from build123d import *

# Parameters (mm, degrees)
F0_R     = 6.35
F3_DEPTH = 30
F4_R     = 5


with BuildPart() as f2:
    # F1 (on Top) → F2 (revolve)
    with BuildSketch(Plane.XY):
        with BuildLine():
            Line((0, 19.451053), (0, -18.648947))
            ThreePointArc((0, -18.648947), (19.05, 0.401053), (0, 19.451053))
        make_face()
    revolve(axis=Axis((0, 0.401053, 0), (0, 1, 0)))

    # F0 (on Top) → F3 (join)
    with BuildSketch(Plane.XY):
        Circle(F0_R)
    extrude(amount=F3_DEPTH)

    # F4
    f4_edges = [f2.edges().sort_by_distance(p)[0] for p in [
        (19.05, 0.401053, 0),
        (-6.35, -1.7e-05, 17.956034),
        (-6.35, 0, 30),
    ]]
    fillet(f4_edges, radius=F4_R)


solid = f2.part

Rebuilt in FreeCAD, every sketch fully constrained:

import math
import FreeCAD as App
import Part
import Sketcher

V = App.Vector


def edges_at(feature, points):
    """Names of the edges that pass closest to the given points."""
    edges = feature.Shape.Edges
    near = lambda p: min(range(len(edges)), key=lambda i: edges[i].distToShape(Part.Vertex(*p))[0])
    return sorted({f"Edge{near(p) + 1}" for p in points})

doc = App.newDocument("Part")
body = doc.addObject("PartDesign::Body", "Body")

# Sketch on XY plane
sketch1 = body.newObject("Sketcher::SketchObject", "Sketch")
sketch1.AttachmentSupport = (doc.getObject("XY_Plane"), [""])
sketch1.MapMode = "FlatFace"
sketch1.addGeometry(Part.LineSegment(V(0, 19.451053, 0), V(0, -18.648947, 0)), False)
sketch1.addGeometry(Part.ArcOfCircle(Part.Circle(V(0, 0.401053, 0), V(0, 0, 1), 19.05), math.radians(-90), math.radians(90)), False)
sketch1.addConstraint(Sketcher.Constraint("Coincident", 0, 1, 1, 2))
sketch1.addConstraint(Sketcher.Constraint("Coincident", 1, 1, 0, 2))
sketch1.addConstraint(Sketcher.Constraint("Vertical", 0))
sketch1.addConstraint(Sketcher.Constraint("PointOnObject", 1, 3, -2))
sketch1.addConstraint(Sketcher.Constraint("PointOnObject", 0, 1, -2))
sketch1.addConstraint(Sketcher.Constraint("Radius", 1, 19.05))
sketch1.addConstraint(Sketcher.Constraint("DistanceY", -1, 1, 1, 3, 0.401053))
revolution = body.newObject("PartDesign::Revolution", "Revolution")
revolution.Profile = sketch1
revolution.ReferenceAxis = (sketch1, ["V_Axis"])
revolution.Angle = 360

# Sketch on XY plane
sketch2 = body.newObject("Sketcher::SketchObject", "Sketch001")
sketch2.AttachmentSupport = (doc.getObject("XY_Plane"), [""])
sketch2.MapMode = "FlatFace"
sketch2.addGeometry(Part.Circle(V(0, 0, 0), V(0, 0, 1), 6.35), False)
sketch2.addConstraint(Sketcher.Constraint("Coincident", 0, 3, -1, 1))
sketch2.addConstraint(Sketcher.Constraint("Diameter", 0, 12.7))
pad1 = body.newObject("PartDesign::Pad", "Pad")
pad1.Profile = sketch2
pad1.Length = 30
doc.recompute()

fillet = body.newObject("PartDesign::Fillet", "Fillet")
fillet.Base = (pad1, edges_at(pad1, [(19.05, 0.401, 0), (-6.35, 0, 17.956), (-6.35, 0, 30)]))
fillet.Radius = 5

doc.recompute()
